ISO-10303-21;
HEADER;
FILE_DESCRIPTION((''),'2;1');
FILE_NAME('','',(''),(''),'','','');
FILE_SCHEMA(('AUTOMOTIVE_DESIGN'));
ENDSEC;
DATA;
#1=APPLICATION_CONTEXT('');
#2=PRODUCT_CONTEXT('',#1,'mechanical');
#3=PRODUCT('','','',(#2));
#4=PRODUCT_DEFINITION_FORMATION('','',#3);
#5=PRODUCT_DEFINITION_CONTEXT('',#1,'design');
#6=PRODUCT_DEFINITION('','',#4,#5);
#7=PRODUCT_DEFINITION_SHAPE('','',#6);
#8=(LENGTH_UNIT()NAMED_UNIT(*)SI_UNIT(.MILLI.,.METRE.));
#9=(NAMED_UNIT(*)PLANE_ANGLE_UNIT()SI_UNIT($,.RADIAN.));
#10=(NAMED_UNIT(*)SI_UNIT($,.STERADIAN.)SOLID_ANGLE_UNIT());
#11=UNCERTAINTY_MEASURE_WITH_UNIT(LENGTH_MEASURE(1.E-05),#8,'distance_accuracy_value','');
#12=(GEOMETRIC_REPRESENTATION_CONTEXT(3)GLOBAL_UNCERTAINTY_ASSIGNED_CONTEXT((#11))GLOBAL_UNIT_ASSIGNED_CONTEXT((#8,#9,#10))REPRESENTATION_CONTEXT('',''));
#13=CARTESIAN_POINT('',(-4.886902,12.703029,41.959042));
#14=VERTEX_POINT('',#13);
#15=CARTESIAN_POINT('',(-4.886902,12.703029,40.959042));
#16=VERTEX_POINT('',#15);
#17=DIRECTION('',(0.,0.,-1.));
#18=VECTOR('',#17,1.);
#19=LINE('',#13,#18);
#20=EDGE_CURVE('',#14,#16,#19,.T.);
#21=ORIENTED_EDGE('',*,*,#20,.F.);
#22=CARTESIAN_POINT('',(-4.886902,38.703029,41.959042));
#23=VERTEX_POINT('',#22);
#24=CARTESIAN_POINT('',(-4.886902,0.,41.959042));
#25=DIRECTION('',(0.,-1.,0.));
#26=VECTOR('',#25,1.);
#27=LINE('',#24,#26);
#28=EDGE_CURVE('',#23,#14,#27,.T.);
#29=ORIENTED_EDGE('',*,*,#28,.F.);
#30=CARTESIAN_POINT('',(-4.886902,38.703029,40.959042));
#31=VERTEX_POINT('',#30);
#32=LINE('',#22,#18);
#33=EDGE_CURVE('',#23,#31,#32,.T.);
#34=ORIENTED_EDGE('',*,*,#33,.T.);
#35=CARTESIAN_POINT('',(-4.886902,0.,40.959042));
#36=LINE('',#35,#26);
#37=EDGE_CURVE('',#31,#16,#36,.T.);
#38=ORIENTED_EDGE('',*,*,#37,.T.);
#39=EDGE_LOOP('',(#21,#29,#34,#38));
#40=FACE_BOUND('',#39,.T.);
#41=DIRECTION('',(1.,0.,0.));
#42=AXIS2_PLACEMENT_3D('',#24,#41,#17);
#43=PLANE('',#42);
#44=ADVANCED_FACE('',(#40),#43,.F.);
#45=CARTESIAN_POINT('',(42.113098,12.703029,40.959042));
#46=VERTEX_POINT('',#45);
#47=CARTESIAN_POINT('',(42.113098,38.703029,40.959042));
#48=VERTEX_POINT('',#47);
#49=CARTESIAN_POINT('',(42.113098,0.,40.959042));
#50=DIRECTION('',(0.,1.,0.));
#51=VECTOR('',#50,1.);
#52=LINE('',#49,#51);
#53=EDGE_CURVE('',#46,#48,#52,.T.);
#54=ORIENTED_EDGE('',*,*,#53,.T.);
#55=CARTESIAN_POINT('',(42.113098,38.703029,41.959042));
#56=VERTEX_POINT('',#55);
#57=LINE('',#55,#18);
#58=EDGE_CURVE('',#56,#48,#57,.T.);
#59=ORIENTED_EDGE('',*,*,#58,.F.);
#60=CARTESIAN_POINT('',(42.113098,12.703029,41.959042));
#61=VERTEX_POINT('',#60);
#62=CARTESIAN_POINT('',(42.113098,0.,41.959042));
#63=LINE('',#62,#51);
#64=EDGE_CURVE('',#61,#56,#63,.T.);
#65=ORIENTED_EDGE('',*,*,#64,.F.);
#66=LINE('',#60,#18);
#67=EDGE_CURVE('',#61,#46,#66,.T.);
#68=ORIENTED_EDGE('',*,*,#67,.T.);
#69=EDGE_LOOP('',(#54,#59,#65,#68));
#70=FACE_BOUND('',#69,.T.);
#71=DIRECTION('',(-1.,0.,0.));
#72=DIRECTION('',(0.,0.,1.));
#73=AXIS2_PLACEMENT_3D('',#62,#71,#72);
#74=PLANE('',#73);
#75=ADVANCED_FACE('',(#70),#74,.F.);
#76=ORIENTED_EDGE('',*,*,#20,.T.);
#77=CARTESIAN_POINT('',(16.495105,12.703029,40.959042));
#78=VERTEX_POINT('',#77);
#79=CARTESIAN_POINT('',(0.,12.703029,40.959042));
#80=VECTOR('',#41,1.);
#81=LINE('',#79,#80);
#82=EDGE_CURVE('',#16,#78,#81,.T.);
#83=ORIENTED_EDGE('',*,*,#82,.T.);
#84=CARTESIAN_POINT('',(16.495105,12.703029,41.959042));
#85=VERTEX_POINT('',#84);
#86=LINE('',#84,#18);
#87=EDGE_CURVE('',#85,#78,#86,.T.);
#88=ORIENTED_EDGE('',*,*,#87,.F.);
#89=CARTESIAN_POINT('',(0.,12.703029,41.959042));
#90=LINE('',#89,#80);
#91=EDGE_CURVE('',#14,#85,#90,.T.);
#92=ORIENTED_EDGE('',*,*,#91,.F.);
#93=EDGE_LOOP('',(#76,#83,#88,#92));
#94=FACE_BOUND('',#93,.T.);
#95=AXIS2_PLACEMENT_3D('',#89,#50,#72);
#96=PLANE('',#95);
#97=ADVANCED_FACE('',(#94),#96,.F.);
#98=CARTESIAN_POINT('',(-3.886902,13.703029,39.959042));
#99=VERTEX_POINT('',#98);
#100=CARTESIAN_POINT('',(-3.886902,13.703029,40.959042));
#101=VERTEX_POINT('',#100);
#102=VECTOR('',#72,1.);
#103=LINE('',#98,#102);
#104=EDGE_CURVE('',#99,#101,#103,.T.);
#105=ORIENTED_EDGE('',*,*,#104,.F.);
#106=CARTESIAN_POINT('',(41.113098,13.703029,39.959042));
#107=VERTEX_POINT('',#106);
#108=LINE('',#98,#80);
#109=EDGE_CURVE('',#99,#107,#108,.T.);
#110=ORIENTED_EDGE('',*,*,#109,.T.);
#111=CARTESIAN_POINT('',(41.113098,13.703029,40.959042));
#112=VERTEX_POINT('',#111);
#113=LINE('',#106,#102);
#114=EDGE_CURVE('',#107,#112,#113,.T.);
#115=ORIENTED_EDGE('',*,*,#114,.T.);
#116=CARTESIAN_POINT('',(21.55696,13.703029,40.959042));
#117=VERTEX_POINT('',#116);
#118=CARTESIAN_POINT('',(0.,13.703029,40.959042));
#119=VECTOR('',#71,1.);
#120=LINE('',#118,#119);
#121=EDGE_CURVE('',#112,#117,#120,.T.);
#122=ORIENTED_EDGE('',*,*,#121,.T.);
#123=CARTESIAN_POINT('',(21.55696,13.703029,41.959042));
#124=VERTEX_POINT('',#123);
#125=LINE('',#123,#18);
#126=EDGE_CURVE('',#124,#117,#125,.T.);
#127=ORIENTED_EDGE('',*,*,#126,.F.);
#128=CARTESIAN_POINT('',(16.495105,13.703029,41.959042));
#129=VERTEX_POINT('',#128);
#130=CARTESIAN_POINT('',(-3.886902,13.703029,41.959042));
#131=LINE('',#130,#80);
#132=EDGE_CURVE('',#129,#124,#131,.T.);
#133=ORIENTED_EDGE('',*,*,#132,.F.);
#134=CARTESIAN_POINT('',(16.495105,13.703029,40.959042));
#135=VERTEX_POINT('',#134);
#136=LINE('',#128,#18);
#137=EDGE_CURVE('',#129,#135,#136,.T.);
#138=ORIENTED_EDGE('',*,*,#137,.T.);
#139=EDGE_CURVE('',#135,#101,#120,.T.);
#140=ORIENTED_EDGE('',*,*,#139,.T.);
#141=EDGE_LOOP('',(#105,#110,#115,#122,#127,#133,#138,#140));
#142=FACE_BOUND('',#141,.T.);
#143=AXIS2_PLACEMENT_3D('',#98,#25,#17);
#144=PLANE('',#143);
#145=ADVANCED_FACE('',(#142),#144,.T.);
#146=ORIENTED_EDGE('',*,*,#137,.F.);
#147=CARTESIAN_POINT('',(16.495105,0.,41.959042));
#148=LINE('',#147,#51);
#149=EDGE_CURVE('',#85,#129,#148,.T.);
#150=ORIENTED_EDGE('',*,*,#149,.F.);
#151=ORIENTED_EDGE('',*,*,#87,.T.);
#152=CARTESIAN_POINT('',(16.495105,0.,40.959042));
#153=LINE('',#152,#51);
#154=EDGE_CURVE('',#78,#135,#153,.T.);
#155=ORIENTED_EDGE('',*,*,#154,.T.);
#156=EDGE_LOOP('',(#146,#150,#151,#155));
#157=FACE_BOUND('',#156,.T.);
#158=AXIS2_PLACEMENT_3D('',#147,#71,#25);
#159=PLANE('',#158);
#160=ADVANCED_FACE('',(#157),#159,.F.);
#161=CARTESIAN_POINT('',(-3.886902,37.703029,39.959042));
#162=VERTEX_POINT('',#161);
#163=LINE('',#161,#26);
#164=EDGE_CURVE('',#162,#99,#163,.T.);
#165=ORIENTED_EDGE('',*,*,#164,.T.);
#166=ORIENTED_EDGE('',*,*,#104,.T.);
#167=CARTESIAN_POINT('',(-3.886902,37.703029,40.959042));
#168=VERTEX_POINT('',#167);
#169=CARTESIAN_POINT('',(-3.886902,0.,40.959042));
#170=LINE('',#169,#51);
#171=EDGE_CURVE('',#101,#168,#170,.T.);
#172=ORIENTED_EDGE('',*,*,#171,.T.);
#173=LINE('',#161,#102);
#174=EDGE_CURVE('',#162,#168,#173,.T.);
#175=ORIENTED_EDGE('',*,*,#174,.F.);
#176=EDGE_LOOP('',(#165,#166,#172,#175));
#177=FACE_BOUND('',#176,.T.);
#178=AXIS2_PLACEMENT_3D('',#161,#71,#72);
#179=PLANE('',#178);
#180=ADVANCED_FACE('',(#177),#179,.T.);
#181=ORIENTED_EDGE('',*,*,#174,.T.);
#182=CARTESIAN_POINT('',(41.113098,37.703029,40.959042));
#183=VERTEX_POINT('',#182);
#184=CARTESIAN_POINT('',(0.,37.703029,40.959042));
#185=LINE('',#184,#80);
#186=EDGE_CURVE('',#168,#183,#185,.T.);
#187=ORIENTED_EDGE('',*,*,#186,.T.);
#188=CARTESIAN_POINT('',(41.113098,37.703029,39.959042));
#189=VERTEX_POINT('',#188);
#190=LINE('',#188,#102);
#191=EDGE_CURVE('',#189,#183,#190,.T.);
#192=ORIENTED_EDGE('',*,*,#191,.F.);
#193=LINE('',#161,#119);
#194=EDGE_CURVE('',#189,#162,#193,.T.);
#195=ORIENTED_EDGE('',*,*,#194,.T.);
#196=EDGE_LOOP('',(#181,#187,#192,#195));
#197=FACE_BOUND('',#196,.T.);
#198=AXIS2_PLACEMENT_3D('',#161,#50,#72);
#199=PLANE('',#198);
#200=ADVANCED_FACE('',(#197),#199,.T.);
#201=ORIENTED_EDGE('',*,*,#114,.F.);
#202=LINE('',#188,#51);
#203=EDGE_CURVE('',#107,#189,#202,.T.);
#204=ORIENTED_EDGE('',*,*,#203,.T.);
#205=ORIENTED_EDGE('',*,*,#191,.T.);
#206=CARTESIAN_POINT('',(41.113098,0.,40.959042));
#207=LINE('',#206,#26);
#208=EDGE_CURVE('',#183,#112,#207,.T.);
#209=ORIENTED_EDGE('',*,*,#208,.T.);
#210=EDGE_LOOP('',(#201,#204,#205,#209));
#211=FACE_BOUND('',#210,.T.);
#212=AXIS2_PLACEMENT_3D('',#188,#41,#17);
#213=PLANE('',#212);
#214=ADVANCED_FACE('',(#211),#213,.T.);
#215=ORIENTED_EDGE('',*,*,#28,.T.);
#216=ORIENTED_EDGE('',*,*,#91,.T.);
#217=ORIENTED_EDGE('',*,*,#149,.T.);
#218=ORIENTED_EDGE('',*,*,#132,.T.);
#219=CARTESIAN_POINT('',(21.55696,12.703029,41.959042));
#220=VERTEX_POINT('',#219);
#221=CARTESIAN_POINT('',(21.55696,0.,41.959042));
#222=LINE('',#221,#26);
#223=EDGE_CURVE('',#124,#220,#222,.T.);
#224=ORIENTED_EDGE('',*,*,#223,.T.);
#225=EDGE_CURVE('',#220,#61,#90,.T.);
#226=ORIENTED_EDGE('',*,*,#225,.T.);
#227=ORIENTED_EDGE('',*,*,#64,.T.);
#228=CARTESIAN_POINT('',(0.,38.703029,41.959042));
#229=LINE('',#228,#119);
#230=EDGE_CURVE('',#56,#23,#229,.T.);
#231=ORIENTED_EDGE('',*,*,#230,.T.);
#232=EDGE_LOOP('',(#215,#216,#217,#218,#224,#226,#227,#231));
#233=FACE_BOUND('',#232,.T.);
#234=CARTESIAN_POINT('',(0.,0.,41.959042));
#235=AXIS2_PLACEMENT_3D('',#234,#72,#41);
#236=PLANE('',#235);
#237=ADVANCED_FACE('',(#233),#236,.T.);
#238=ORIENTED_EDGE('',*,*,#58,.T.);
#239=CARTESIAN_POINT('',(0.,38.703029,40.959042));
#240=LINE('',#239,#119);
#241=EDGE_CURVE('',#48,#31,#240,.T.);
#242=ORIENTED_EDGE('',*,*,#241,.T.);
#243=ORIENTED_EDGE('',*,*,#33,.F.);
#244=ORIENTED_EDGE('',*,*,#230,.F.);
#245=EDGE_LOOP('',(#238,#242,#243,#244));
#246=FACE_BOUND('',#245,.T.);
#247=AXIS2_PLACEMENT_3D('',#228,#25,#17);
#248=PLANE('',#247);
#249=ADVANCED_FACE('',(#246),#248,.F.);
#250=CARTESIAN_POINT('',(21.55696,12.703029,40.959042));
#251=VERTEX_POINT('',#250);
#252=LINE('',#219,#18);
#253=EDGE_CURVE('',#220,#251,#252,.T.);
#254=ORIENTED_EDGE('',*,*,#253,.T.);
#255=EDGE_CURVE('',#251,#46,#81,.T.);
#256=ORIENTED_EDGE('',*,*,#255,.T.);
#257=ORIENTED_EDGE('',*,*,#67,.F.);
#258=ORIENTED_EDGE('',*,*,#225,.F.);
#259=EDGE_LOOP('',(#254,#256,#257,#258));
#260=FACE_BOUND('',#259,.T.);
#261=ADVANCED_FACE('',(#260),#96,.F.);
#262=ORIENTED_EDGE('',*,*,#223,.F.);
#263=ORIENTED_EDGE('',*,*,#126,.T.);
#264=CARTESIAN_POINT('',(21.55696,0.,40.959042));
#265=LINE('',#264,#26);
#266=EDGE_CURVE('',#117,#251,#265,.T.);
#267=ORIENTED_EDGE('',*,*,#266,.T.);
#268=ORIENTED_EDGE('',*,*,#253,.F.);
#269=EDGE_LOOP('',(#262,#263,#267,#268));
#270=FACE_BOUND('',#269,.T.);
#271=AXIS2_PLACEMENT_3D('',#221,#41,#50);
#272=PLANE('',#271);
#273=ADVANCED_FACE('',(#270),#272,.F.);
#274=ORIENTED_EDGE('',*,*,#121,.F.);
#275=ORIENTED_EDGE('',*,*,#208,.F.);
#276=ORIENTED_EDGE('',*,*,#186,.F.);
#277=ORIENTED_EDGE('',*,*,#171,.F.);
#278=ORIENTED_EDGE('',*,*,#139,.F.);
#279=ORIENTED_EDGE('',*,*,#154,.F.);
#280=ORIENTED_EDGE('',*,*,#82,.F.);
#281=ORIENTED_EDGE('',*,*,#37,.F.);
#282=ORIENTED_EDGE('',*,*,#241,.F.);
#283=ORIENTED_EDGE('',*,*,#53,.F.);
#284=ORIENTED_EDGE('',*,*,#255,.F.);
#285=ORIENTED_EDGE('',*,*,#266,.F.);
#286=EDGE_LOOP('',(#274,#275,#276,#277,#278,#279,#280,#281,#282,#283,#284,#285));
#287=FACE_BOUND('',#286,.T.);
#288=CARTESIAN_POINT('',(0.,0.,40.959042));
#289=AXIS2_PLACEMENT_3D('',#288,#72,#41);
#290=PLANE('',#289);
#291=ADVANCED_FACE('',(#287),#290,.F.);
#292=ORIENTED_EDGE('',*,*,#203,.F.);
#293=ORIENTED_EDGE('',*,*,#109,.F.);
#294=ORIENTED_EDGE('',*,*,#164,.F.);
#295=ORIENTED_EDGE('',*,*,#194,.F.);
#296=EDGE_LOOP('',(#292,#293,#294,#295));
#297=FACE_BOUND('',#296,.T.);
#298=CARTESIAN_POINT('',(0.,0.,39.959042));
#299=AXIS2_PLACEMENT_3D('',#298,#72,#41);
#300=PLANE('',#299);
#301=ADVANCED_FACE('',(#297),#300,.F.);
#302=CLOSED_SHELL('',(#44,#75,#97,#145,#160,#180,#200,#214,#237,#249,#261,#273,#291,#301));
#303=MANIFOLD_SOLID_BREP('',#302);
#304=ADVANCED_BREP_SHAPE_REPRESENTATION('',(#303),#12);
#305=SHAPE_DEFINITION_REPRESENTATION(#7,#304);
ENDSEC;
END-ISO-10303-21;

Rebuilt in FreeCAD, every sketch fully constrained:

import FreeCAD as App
import Part
import Sketcher
from FreeCAD import Vector


def add_polygon(sketch, points):
    """Adds a closed chain of lines whose ends are joined by coincident constraints."""
    first, n = sketch.GeometryCount, len(points)
    for a, b in zip(points, points[1:] + points[:1]):
        sketch.addGeometry(Part.LineSegment(App.Vector(*a, 0), App.Vector(*b, 0)), False)
    for i in range(n):
        sketch.addConstraint(Sketcher.Constraint("Coincident", first + i, 2, first + (i + 1) % n, 1))

doc = App.newDocument("Part")
params = doc.addObject("Spreadsheet::Sheet", "Params")
for row, (alias, value) in enumerate([
    ("sketch1_width", "47 mm"),
    ("sketch1_width2", "45 mm"),
    ("sketch1_height", "1 mm"),
    ("sketch1_height2", "26 mm"),
    ("sketch1_height3", "24 mm"),
    ("pad1_length", "1 mm"),
    ("sketch2_width", "45 mm"),
    ("sketch2_height", "24 mm"),
    ("pad2_length", "2 mm"),
], start=1):
    params.set(f"A{row}", alias)
    params.set(f"B{row}", "=" + value)
    params.setAlias(f"B{row}", alias)

body = doc.addObject("PartDesign::Body", "Body")

sketch1 = doc.addObject("Sketcher::SketchObject", "Sketch")
body.addObject(sketch1)
sketch1.AttachmentSupport = (doc.XY_Plane, [""])
sketch1.MapMode = "FlatFace"
sketch1.AttachmentOffset = App.Placement(Vector(0, 0, 40.959042), App.Rotation())
add_polygon(sketch1, [(41.1, 13.7), (21.6, 13.7), (21.6, 12.7), (42.1, 12.7), (42.1, 38.7), (-4.9, 38.7), (-4.9, 12.7), (16.5, 12.7), (16.5, 13.7), (-3.9, 13.7), (-3.9, 37.7), (41.1, 37.7)])
sketch1.addConstraint([
    Sketcher.Constraint("Horizontal", 0),
    Sketcher.Constraint("Vertical", 1),
    Sketcher.Constraint("Horizontal", 2),
    Sketcher.Constraint("Vertical", 3),
    Sketcher.Constraint("Horizontal", 4),
    Sketcher.Constraint("Vertical", 5),
    Sketcher.Constraint("Horizontal", 6),
    Sketcher.Constraint("Vertical", 7),
    Sketcher.Constraint("Horizontal", 8),
    Sketcher.Constraint("Vertical", 9),
    Sketcher.Constraint("Horizontal", 10),
    Sketcher.Constraint("Vertical", 11),
    Sketcher.Constraint("Horizontal", 2, 2, 5, 2),
    Sketcher.Constraint("Horizontal", 0, 2, 7, 2),
    Sketcher.Constraint("DistanceX", 4, 2, 4, 1, 47.0),
    Sketcher.Constraint("DistanceX", 10, 1, 10, 2, 45.0),
    Sketcher.Constraint("DistanceY", 1, 2, 1, 1, 1.0),
    Sketcher.Constraint("DistanceY", 3, 1, 3, 2, 26.0),
    Sketcher.Constraint("DistanceY", 9, 1, 9, 2, 24.0),
    Sketcher.Constraint("DistanceX", 5, 2, 8, 2, 1.0),
    Sketcher.Constraint("DistanceX", 0, 2, 0, 1, 19.556138),
    Sketcher.Constraint("DistanceX", -1, 1, 2, 2, 42.113098),
    Sketcher.Constraint("DistanceX", 6, 1, 6, 2, 21.382006),
    Sketcher.Constraint("DistanceY", -1, 1, 0, 2, 13.703029),
])
sketch1.setExpression("Constraints[26]", "Params.sketch1_width")
sketch1.setExpression("Constraints[27]", "Params.sketch1_width2")
sketch1.setExpression("Constraints[28]", "Params.sketch1_height")
sketch1.setExpression("Constraints[29]", "Params.sketch1_height2")
sketch1.setExpression("Constraints[30]", "Params.sketch1_height3")
pad1 = doc.addObject("PartDesign::Pad", "Pad")
body.addObject(pad1)
pad1.Profile = sketch1
pad1.setExpression("Length", "Params.pad1_length")

sketch2 = doc.addObject("Sketcher::SketchObject", "Sketch001")
body.addObject(sketch2)
sketch2.AttachmentSupport = (doc.XY_Plane, [""])
sketch2.MapMode = "FlatFace"
sketch2.AttachmentOffset = App.Placement(Vector(0, 0, 41.959042), App.Rotation())
add_polygon(sketch2, [(-4, 38), (-4, 14), (41, 14), (41, 38)])
sketch2.addConstraint([
    Sketcher.Constraint("Vertical", 0),
    Sketcher.Constraint("Horizontal", 1),
    Sketcher.Constraint("Vertical", 2),
    Sketcher.Constraint("Horizontal", 3),
    Sketcher.Constraint("DistanceX", 1, 1, 1, 2, 45.0),
    Sketcher.Constraint("DistanceY", 0, 2, 0, 1, 24.0),
    Sketcher.Constraint("DistanceX", 0, 2, -1, 1, 3.886902),
    Sketcher.Constraint("DistanceY", -1, 1, 0, 2, 13.703029),
])
sketch2.setExpression("Constraints[8]", "Params.sketch2_width")
sketch2.setExpression("Constraints[9]", "Params.sketch2_height")
pad2 = doc.addObject("PartDesign::Pad", "Pad001")
body.addObject(pad2)
pad2.Profile = sketch2
pad2.setExpression("Length", "Params.pad2_length")
pad2.Reversed = True

doc.recompute()
